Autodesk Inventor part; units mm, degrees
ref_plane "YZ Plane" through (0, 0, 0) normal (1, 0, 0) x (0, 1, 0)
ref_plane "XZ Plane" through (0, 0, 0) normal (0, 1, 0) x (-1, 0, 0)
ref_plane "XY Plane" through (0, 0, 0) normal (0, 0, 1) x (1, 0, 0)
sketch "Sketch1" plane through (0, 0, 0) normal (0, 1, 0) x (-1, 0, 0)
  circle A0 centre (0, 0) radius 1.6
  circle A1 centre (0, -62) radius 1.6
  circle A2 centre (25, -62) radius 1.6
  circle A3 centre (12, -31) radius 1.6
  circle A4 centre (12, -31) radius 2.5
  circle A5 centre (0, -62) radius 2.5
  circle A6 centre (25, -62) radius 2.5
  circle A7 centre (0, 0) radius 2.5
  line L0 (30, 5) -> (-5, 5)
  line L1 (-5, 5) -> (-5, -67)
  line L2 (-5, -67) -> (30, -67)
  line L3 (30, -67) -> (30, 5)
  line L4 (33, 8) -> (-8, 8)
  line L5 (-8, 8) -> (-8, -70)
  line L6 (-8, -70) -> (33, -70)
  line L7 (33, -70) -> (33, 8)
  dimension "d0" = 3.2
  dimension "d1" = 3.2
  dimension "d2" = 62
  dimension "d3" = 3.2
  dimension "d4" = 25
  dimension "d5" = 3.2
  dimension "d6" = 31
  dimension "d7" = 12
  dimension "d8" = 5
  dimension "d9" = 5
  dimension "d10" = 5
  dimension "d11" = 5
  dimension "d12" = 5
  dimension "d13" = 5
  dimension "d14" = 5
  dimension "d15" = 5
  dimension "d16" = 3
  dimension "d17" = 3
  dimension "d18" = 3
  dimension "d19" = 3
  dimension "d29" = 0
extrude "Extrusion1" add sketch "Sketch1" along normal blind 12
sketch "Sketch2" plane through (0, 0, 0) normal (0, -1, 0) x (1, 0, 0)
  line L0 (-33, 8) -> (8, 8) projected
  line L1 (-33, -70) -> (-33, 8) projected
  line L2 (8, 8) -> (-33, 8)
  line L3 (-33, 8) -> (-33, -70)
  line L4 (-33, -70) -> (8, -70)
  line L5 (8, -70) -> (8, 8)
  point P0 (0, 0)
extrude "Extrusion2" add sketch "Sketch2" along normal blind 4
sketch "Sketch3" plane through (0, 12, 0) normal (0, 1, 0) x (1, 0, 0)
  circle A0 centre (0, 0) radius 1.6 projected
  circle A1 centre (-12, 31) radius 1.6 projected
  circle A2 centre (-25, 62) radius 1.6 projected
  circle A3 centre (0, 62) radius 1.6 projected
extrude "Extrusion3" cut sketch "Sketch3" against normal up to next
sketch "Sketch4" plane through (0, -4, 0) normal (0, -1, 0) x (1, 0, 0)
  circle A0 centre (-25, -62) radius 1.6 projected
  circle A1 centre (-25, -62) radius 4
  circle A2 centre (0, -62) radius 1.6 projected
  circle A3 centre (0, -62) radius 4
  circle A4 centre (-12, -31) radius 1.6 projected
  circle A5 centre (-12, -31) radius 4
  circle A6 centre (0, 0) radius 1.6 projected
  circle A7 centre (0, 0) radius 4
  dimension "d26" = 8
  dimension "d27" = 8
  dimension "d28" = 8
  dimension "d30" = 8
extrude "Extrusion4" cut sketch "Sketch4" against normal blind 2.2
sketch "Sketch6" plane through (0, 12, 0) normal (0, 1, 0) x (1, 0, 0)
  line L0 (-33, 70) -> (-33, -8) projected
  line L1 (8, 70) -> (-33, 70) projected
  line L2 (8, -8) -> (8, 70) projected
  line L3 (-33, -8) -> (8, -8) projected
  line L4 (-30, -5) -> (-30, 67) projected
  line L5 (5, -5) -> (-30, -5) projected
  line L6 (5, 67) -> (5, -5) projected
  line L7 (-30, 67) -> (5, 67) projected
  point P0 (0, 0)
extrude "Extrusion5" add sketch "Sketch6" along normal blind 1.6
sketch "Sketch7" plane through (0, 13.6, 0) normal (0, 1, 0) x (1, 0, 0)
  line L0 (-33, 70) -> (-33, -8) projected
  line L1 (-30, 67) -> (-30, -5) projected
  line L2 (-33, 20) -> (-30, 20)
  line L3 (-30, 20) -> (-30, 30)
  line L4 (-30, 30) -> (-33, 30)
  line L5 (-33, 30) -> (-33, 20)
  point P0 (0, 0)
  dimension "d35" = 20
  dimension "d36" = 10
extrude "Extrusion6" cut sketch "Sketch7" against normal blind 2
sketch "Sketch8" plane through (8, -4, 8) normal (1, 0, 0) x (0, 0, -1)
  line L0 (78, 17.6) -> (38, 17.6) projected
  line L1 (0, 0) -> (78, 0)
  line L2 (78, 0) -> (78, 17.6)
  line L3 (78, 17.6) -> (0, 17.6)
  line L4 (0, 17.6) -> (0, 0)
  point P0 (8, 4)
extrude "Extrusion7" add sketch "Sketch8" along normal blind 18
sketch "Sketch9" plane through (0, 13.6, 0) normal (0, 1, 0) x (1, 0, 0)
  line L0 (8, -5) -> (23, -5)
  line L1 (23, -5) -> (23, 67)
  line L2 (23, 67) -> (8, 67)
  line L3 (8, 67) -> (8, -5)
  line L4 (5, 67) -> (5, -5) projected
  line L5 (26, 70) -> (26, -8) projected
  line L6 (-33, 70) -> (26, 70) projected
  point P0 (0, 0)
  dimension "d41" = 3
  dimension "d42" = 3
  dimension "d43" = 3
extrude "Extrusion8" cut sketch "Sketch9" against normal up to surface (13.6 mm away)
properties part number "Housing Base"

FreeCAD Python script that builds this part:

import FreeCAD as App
import Part
import Sketcher
Q = App.Units.Quantity

doc = App.newDocument("Part")
params = doc.addObject("Spreadsheet::Sheet", "Params")
for row, (alias, value) in enumerate([
    ("sketch1_diameter", "5 mm"),
    ("sketch1_diameter2", "3.2 mm"),
    ("pad1_length", "12 mm"),
    ("sketch2_width", "41 mm"),
    ("sketch2_height", "78 mm"),
    ("pad2_length", "4 mm"),
    ("sketch3_diameter", "3.2 mm"),
    ("pocket1_length", "16 mm"),
    ("sketch4_diameter", "8 mm"),
    ("sketch4_diameter2", "3.2 mm"),
    ("pocket2_length", "2.2 mm"),
    ("sketch5_width", "41 mm"),
    ("sketch5_width2", "35 mm"),
    ("sketch5_height", "78 mm"),
    ("sketch5_height2", "72 mm"),
    ("pad3_length", "1.6 mm"),
    ("sketch6_height", "10 mm"),
    ("sketch6_width", "3 mm"),
    ("pocket3_length", "2 mm"),
    ("sketch7_height", "78 mm"),
    ("sketch7_width", "17.6 mm"),
    ("pad4_length", "18 mm"),
    ("sketch8_width", "15 mm"),
    ("sketch8_height", "72 mm"),
    ("pocket4_length", "13.6 mm"),
], start=1):
    params.set(f"A{row}", alias)
    params.set(f"B{row}", "=" + value)
    params.setAlias(f"B{row}", alias)

body = doc.addObject("PartDesign::Body", "Body")
body.AllowCompound = True

# Sketch on XZ plane
sketch1 = body.newObject("Sketcher::SketchObject", "Sketch")
sketch1.AttachmentSupport = (doc.getObject("XZ_Plane"), [""])
sketch1.MapMode = "FlatFace"
sketch1.addGeometry([
    Part.Circle(App.Vector(-12, -31, 0), App.Vector(0, 0, 1), 2.5),  # 0
    Part.Circle(App.Vector(-12, -31, 0), App.Vector(0, 0, 1), 1.6),  # 1
    Part.Circle(App.Vector(0, -62, 0), App.Vector(0, 0, 1), 2.5),  # 2
    Part.Circle(App.Vector(0, -62, 0), App.Vector(0, 0, 1), 1.6),  # 3
    Part.Circle(App.Vector(-25, -62, 0), App.Vector(0, 0, 1), 2.5),  # 4
    Part.Circle(App.Vector(-25, -62, 0), App.Vector(0, 0, 1), 1.6),  # 5
    Part.Circle(App.Vector(0, 0, 0), App.Vector(0, 0, 1), 2.5),  # 6
    Part.Circle(App.Vector(0, 0, 0), App.Vector(0, 0, 1), 1.6),  # 7
    Part.LineSegment(App.Vector(-33, -70, 0), App.Vector(-33, 8, 0)),  # 8
    Part.LineSegment(App.Vector(-33, 8, 0), App.Vector(8, 8, 0)),  # 9
    Part.LineSegment(App.Vector(8, 8, 0), App.Vector(8, -70, 0)),  # 10
    Part.LineSegment(App.Vector(8, -70, 0), App.Vector(-33, -70, 0)),  # 11
    Part.LineSegment(App.Vector(5, 5, 0), App.Vector(-30, 5, 0)),  # 12
    Part.LineSegment(App.Vector(-30, 5, 0), App.Vector(-30, -67, 0)),  # 13
    Part.LineSegment(App.Vector(-30, -67, 0), App.Vector(5, -67, 0)),  # 14
    Part.LineSegment(App.Vector(5, -67, 0), App.Vector(5, 5, 0)),  # 15
], False)
sketch1.addConstraint([
    Sketcher.Constraint("Coincident", 8, 2, 9, 1),
    Sketcher.Constraint("Coincident", 9, 2, 10, 1),
    Sketcher.Constraint("Coincident", 10, 2, 11, 1),
    Sketcher.Constraint("Coincident", 11, 2, 8, 1),
    Sketcher.Constraint("Coincident", 12, 2, 13, 1),
    Sketcher.Constraint("Coincident", 13, 2, 14, 1),
    Sketcher.Constraint("Coincident", 14, 2, 15, 1),
    Sketcher.Constraint("Coincident", 15, 2, 12, 1),
    Sketcher.Constraint("Vertical", 8),
    Sketcher.Constraint("Horizontal", 9),
    Sketcher.Constraint("Vertical", 10),
    Sketcher.Constraint("Horizontal", 11),
    Sketcher.Constraint("Horizontal", 12),
    Sketcher.Constraint("Vertical", 13),
    Sketcher.Constraint("Horizontal", 14),
    Sketcher.Constraint("Vertical", 15),
    Sketcher.Constraint("Coincident", 6, 3, -1, 1),
    Sketcher.Constraint("Coincident", 7, 3, -1, 1),
    Sketcher.Constraint("Coincident", 1, 3, 0, 3),
    Sketcher.Constraint("Coincident", 3, 3, 2, 3),
    Sketcher.Constraint("Coincident", 5, 3, 4, 3),
    Sketcher.Constraint("Equal", 0, 2),
    Sketcher.Constraint("Equal", 1, 3),
    Sketcher.Constraint("Equal", 2, 4),
    Sketcher.Constraint("Equal", 3, 5),
    Sketcher.Constraint("Equal", 4, 6),
    Sketcher.Constraint("Equal", 5, 7),
    Sketcher.Constraint("PointOnObject", 2, 3, -2),
    Sketcher.Constraint("Horizontal", 3, 3, 4, 3),
    Sketcher.Constraint("Diameter", 0, Q("5 mm")),
    Sketcher.Constraint("Diameter", 1, Q("3.2 mm")),
    Sketcher.Constraint("DistanceX", 0, 3, -1, 1, Q("12 mm")),
    Sketcher.Constraint("DistanceY", 0, 3, -1, 1, Q("31 mm")),
    Sketcher.Constraint("DistanceY", 2, 3, -1, 1, Q("62 mm")),
    Sketcher.Constraint("DistanceX", 4, 3, -1, 1, Q("25 mm")),
    Sketcher.Constraint("DistanceY", -1, 1, 12, 2, Q("5 mm")),
    Sketcher.Constraint("DistanceX", -1, 1, 14, 2, Q("5 mm")),
    Sketcher.Constraint("DistanceX", 8, 2, 12, 2, Q("3 mm")),
    Sketcher.Constraint("DistanceY", 12, 2, 8, 2, Q("3 mm")),
    Sketcher.Constraint("DistanceY", 11, 2, 13, 2, Q("3 mm")),
    Sketcher.Constraint("DistanceX", 13, 2, 4, 3, Q("5 mm")),
    Sketcher.Constraint("DistanceY", 13, 2, 4, 3, Q("5 mm")),
    Sketcher.Constraint("DistanceX", 14, 2, 10, 2, Q("3 mm")),
])
sketch1.setExpression("Constraints[29]", "Params.sketch1_diameter")
sketch1.setExpression("Constraints[30]", "Params.sketch1_diameter2")
pad1 = body.newObject("PartDesign::Pad", "Pad")
pad1.Profile = sketch1
pad1.setExpression("Length", "Params.pad1_length")
pad1.Reversed = True

# Sketch on XZ plane
sketch2 = body.newObject("Sketcher::SketchObject", "Sketch001")
sketch2.AttachmentSupport = (doc.getObject("XZ_Plane"), [""])
sketch2.MapMode = "FlatFace"
sketch2.addGeometry([
    Part.LineSegment(App.Vector(8, 8, 0), App.Vector(-33, 8, 0)),
    Part.LineSegment(App.Vector(-33, 8, 0), App.Vector(-33, -70, 0)),
    Part.LineSegment(App.Vector(-33, -70, 0), App.Vector(8, -70, 0)),
    Part.LineSegment(App.Vector(8, -70, 0), App.Vector(8, 8, 0)),
], False)
sketch2.addConstraint([
    Sketcher.Constraint("Coincident", 0, 2, 1, 1),
    Sketcher.Constraint("Coincident", 1, 2, 2, 1),
    Sketcher.Constraint("Coincident", 2, 2, 3, 1),
    Sketcher.Constraint("Coincident", 3, 2, 0, 1),
    Sketcher.Constraint("Horizontal", 0),
    Sketcher.Constraint("Vertical", 1),
    Sketcher.Constraint("Horizontal", 2),
    Sketcher.Constraint("Vertical", 3),
    Sketcher.Constraint("DistanceX", 0, 2, 0, 1, Q("41 mm")),
    Sketcher.Constraint("DistanceY", 1, 2, 1, 1, Q("78 mm")),
    Sketcher.Constraint("DistanceX", 0, 2, -1, 1, Q("33 mm")),
    Sketcher.Constraint("DistanceY", -1, 1, 0, 2, Q("8 mm")),
])
sketch2.setExpression("Constraints[8]", "Params.sketch2_width")
sketch2.setExpression("Constraints[9]", "Params.sketch2_height")
pad2 = body.newObject("PartDesign::Pad", "Pad001")
pad2.Profile = sketch2
pad2.setExpression("Length", "Params.pad2_length")

# Sketch on XZ plane
sketch3 = body.newObject("Sketcher::SketchObject", "Sketch002")
sketch3.AttachmentSupport = (doc.getObject("XZ_Plane"), [""])
sketch3.MapMode = "FlatFace"
sketch3.AttachmentOffset = App.Placement(App.Vector(0, 0, -12), App.Rotation())
sketch3.addGeometry([
    Part.Circle(App.Vector(0, 0, 0), App.Vector(0, 0, 1), 1.6),
    Part.Circle(App.Vector(-12, -31, 0), App.Vector(0, 0, 1), 1.6),
    Part.Circle(App.Vector(-25, -62, 0), App.Vector(0, 0, 1), 1.6),
    Part.Circle(App.Vector(0, -62, 0), App.Vector(0, 0, 1), 1.6),
], False)
sketch3.addConstraint([
    Sketcher.Constraint("Coincident", 0, 3, -1, 1),
    Sketcher.Constraint("Equal", 0, 1),
    Sketcher.Constraint("Equal", 1, 2),
    Sketcher.Constraint("Equal", 2, 3),
    Sketcher.Constraint("PointOnObject", 3, 3, -2),
    Sketcher.Constraint("Horizontal", 2, 3, 3, 3),
    Sketcher.Constraint("Diameter", 0, Q("3.2 mm")),
    Sketcher.Constraint("DistanceX", 1, 3, -1, 1, Q("12 mm")),
    Sketcher.Constraint("DistanceY", 1, 3, -1, 1, Q("31 mm")),
    Sketcher.Constraint("DistanceX", 2, 3, -1, 1, Q("25 mm")),
    Sketcher.Constraint("DistanceY", 2, 3, -1, 1, Q("62 mm")),
])
sketch3.setExpression("Constraints[6]", "Params.sketch3_diameter")
pocket1 = body.newObject("PartDesign::Pocket", "Pocket")
pocket1.Profile = sketch3
pocket1.setExpression("Length", "Params.pocket1_length")
pocket1.Reversed = True

# Sketch on XZ plane
sketch4 = body.newObject("Sketcher::SketchObject", "Sketch003")
sketch4.AttachmentSupport = (doc.getObject("XZ_Plane"), [""])
sketch4.MapMode = "FlatFace"
sketch4.AttachmentOffset = App.Placement(App.Vector(0, 0, 4), App.Rotation())
sketch4.addGeometry([
    Part.Circle(App.Vector(-25, -62, 0), App.Vector(0, 0, 1), 4),  # 0
    Part.Circle(App.Vector(-25, -62, 0), App.Vector(0, 0, 1), 1.6),  # 1
    Part.Circle(App.Vector(0, -62, 0), App.Vector(0, 0, 1), 4),  # 2
    Part.Circle(App.Vector(0, -62, 0), App.Vector(0, 0, 1), 1.6),  # 3
    Part.Circle(App.Vector(-12, -31, 0), App.Vector(0, 0, 1), 4),  # 4
    Part.Circle(App.Vector(-12, -31, 0), App.Vector(0, 0, 1), 1.6),  # 5
    Part.Circle(App.Vector(0, 0, 0), App.Vector(0, 0, 1), 4),  # 6
    Part.Circle(App.Vector(0, 0, 0), App.Vector(0, 0, 1), 1.6),  # 7
], False)
sketch4.addConstraint([
    Sketcher.Constraint("Coincident", 6, 3, -1, 1),
    Sketcher.Constraint("Coincident", 7, 3, -1, 1),
    Sketcher.Constraint("Coincident", 1, 3, 0, 3),
    Sketcher.Constraint("Coincident", 3, 3, 2, 3),
    Sketcher.Constraint("Coincident", 5, 3, 4, 3),
    Sketcher.Constraint("Equal", 0, 2),
    Sketcher.Constraint("Equal", 1, 3),
    Sketcher.Constraint("Equal", 2, 4),
    Sketcher.Constraint("Equal", 3, 5),
    Sketcher.Constraint("Equal", 4, 6),
    Sketcher.Constraint("Equal", 5, 7),
    Sketcher.Constraint("PointOnObject", 2, 3, -2),
    Sketcher.Constraint("Horizontal", 1, 3, 2, 3),
    Sketcher.Constraint("Diameter", 0, Q("8 mm")),
    Sketcher.Constraint("Diameter", 1, Q("3.2 mm")),
    Sketcher.Constraint("DistanceX", 0, 3, -1, 1, Q("25 mm")),
    Sketcher.Constraint("DistanceY", 0, 3, -1, 1, Q("62 mm")),
    Sketcher.Constraint("DistanceX", 4, 3, -1, 1, Q("12 mm")),
    Sketcher.Constraint("DistanceY", 4, 3, -1, 1, Q("31 mm")),
])
sketch4.setExpression("Constraints[13]", "Params.sketch4_diameter")
sketch4.setExpression("Constraints[14]", "Params.sketch4_diameter2")
pocket2 = body.newObject("PartDesign::Pocket", "Pocket001")
pocket2.Profile = sketch4
pocket2.setExpression("Length", "Params.pocket2_length")

# Sketch on XZ plane
sketch5 = body.newObject("Sketcher::SketchObject", "Sketch004")
sketch5.AttachmentSupport = (doc.getObject("XZ_Plane"), [""])
sketch5.MapMode = "FlatFace"
sketch5.AttachmentOffset = App.Placement(App.Vector(0, 0, -12), App.Rotation())
sketch5.addGeometry([
    Part.LineSegment(App.Vector(8, -70, 0), App.Vector(-33, -70, 0)),  # 0
    Part.LineSegment(App.Vector(-33, -70, 0), App.Vector(-33, 8, 0)),  # 1
    Part.LineSegment(App.Vector(-33, 8, 0), App.Vector(8, 8, 0)),  # 2
    Part.LineSegment(App.Vector(8, 8, 0), App.Vector(8, -70, 0)),  # 3
    Part.LineSegment(App.Vector(5, 5, 0), App.Vector(-30, 5, 0)),  # 4
    Part.LineSegment(App.Vector(-30, 5, 0), App.Vector(-30, -67, 0)),  # 5
    Part.LineSegment(App.Vector(-30, -67, 0), App.Vector(5, -67, 0)),  # 6
    Part.LineSegment(App.Vector(5, -67, 0), App.Vector(5, 5, 0)),  # 7
], False)
sketch5.addConstraint([
    Sketcher.Constraint("Coincident", 0, 2, 1, 1),
    Sketcher.Constraint("Coincident", 1, 2, 2, 1),
    Sketcher.Constraint("Coincident", 2, 2, 3, 1),
    Sketcher.Constraint("Coincident", 3, 2, 0, 1),
    Sketcher.Constraint("Coincident", 4, 2, 5, 1),
    Sketcher.Constraint("Coincident", 5, 2, 6, 1),
    Sketcher.Constraint("Coincident", 6, 2, 7, 1),
    Sketcher.Constraint("Coincident", 7, 2, 4, 1),
    Sketcher.Constraint("Horizontal", 0),
    Sketcher.Constraint("Vertical", 1),
    Sketcher.Constraint("Horizontal", 2),
    Sketcher.Constraint("Vertical", 3),
    Sketcher.Constraint("Horizontal", 4),
    Sketcher.Constraint("Vertical", 5),
    Sketcher.Constraint("Horizontal", 6),
    Sketcher.Constraint("Vertical", 7),
    Sketcher.Constraint("DistanceX", 0, 2, 0, 1, Q("41 mm")),
    Sketcher.Constraint("DistanceX", 4, 2, 4, 1, Q("35 mm")),
    Sketcher.Constraint("DistanceY", 1, 1, 1, 2, Q("78 mm")),
    Sketcher.Constraint("DistanceY", 5, 2, 5, 1, Q("72 mm")),
    Sketcher.Constraint("DistanceX", 0, 2, -1, 1, Q("33 mm")),
    Sketcher.Constraint("DistanceY", 0, 2, -1, 1, Q("70 mm")),
    Sketcher.Constraint("DistanceX", 4, 2, -1, 1, Q("30 mm")),
    Sketcher.Constraint("DistanceY", -1, 1, 4, 2, Q("5 mm")),
])
sketch5.setExpression("Constraints[16]", "Params.sketch5_width")
sketch5.setExpression("Constraints[17]", "Params.sketch5_width2")
sketch5.setExpression("Constraints[18]", "Params.sketch5_height")
sketch5.setExpression("Constraints[19]", "Params.sketch5_height2")
pad3 = body.newObject("PartDesign::Pad", "Pad002")
pad3.Profile = sketch5
pad3.setExpression("Length", "Params.pad3_length")
pad3.Reversed = True

# Sketch on XZ plane
sketch6 = body.newObject("Sketcher::SketchObject", "Sketch005")
sketch6.AttachmentSupport = (doc.getObject("XZ_Plane"), [""])
sketch6.MapMode = "FlatFace"
sketch6.AttachmentOffset = App.Placement(App.Vector(0, 0, -13.6), App.Rotation())
sketch6.addGeometry([
    Part.LineSegment(App.Vector(-30, -30, 0), App.Vector(-33, -30, 0)),
    Part.LineSegment(App.Vector(-33, -30, 0), App.Vector(-33, -20, 0)),
    Part.LineSegment(App.Vector(-33, -20, 0), App.Vector(-30, -20, 0)),
    Part.LineSegment(App.Vector(-30, -20, 0), App.Vector(-30, -30, 0)),
], False)
sketch6.addConstraint([
    Sketcher.Constraint("Coincident", 0, 2, 1, 1),
    Sketcher.Constraint("Coincident", 1, 2, 2, 1),
    Sketcher.Constraint("Coincident", 2, 2, 3, 1),
    Sketcher.Constraint("Coincident", 3, 2, 0, 1),
    Sketcher.Constraint("Horizontal", 0),
    Sketcher.Constraint("Vertical", 1),
    Sketcher.Constraint("Horizontal", 2),
    Sketcher.Constraint("Vertical", 3),
    Sketcher.Constraint("DistanceY", 1, 1, 1, 2, Q("10 mm")),
    Sketcher.Constraint("DistanceY", 1, 2, -1, 1, Q("20 mm")),
    Sketcher.Constraint("DistanceX", 0, 2, 0, 1, Q("3 mm")),
    Sketcher.Constraint("DistanceX", 0, 2, -1, 1, Q("33 mm")),
])
sketch6.setExpression("Constraints[8]", "Params.sketch6_height")
sketch6.setExpression("Constraints[10]", "Params.sketch6_width")
pocket3 = body.newObject("PartDesign::Pocket", "Pocket002")
pocket3.Profile = sketch6
pocket3.setExpression("Length", "Params.pocket3_length")
pocket3.Reversed = True

# Sketch on YZ plane
sketch7 = body.newObject("Sketcher::SketchObject", "Sketch006")
sketch7.AttachmentSupport = (doc.getObject("YZ_Plane"), [""])
sketch7.MapMode = "FlatFace"
sketch7.AttachmentOffset = App.Placement(App.Vector(0, 0, 8), App.Rotation())
sketch7.addGeometry([
    Part.LineSegment(App.Vector(-4, -70, 0), App.Vector(13.6, -70, 0)),
    Part.LineSegment(App.Vector(13.6, -70, 0), App.Vector(13.6, 8, 0)),
    Part.LineSegment(App.Vector(13.6, 8, 0), App.Vector(-4, 8, 0)),
    Part.LineSegment(App.Vector(-4, 8, 0), App.Vector(-4, -70, 0)),
], False)
sketch7.addConstraint([
    Sketcher.Constraint("Coincident", 0, 2, 1, 1),
    Sketcher.Constraint("Coincident", 1, 2, 2, 1),
    Sketcher.Constraint("Coincident", 2, 2, 3, 1),
    Sketcher.Constraint("Coincident", 3, 2, 0, 1),
    Sketcher.Constraint("Horizontal", 0),
    Sketcher.Constraint("Vertical", 1),
    Sketcher.Constraint("Horizontal", 2),
    Sketcher.Constraint("Vertical", 3),
    Sketcher.Constraint("DistanceY", 1, 1, 1, 2, Q("78 mm")),
    Sketcher.Constraint("DistanceX", 0, 1, 0, 2, Q("17.6 mm")),
    Sketcher.Constraint("DistanceY", 0, 2, -1, 1, Q("70 mm")),
    Sketcher.Constraint("DistanceX", 2, 2, -1, 1, Q("4 mm")),
])
sketch7.setExpression("Constraints[8]", "Params.sketch7_height")
sketch7.setExpression("Constraints[9]", "Params.sketch7_width")
pad4 = body.newObject("PartDesign::Pad", "Pad003")
pad4.Profile = sketch7
pad4.setExpression("Length", "Params.pad4_length")

# Sketch on XZ plane
sketch8 = body.newObject("Sketcher::SketchObject", "Sketch007")
sketch8.AttachmentSupport = (doc.getObject("XZ_Plane"), [""])
sketch8.MapMode = "FlatFace"
sketch8.AttachmentOffset = App.Placement(App.Vector(0, 0, -13.6), App.Rotation())
sketch8.addGeometry([
    Part.LineSegment(App.Vector(8, -67, 0), App.Vector(8, 5, 0)),
    Part.LineSegment(App.Vector(8, 5, 0), App.Vector(23, 5, 0)),
    Part.LineSegment(App.Vector(23, 5, 0), App.Vector(23, -67, 0)),
    Part.LineSegment(App.Vector(23, -67, 0), App.Vector(8, -67, 0)),
], False)
sketch8.addConstraint([
    Sketcher.Constraint("Coincident", 0, 2, 1, 1),
    Sketcher.Constraint("Coincident", 1, 2, 2, 1),
    Sketcher.Constraint("Coincident", 2, 2, 3, 1),
    Sketcher.Constraint("Coincident", 3, 2, 0, 1),
    Sketcher.Constraint("Vertical", 0),
    Sketcher.Constraint("Horizontal", 1),
    Sketcher.Constraint("Vertical", 2),
    Sketcher.Constraint("Horizontal", 3),
    Sketcher.Constraint("DistanceX", 1, 1, 1, 2, Q("15 mm")),
    Sketcher.Constraint("DistanceY", 0, 1, 0, 2, Q("72 mm")),
    Sketcher.Constraint("DistanceX", -1, 1, 0, 2, Q("8 mm")),
    Sketcher.Constraint("DistanceY", -1, 1, 0, 2, Q("5 mm")),
])
sketch8.setExpression("Constraints[8]", "Params.sketch8_width")
sketch8.setExpression("Constraints[9]", "Params.sketch8_height")
pocket4 = body.newObject("PartDesign::Pocket", "Pocket003")
pocket4.Profile = sketch8
pocket4.setExpression("Length", "Params.pocket4_length")
pocket4.Reversed = True

doc.recompute()
